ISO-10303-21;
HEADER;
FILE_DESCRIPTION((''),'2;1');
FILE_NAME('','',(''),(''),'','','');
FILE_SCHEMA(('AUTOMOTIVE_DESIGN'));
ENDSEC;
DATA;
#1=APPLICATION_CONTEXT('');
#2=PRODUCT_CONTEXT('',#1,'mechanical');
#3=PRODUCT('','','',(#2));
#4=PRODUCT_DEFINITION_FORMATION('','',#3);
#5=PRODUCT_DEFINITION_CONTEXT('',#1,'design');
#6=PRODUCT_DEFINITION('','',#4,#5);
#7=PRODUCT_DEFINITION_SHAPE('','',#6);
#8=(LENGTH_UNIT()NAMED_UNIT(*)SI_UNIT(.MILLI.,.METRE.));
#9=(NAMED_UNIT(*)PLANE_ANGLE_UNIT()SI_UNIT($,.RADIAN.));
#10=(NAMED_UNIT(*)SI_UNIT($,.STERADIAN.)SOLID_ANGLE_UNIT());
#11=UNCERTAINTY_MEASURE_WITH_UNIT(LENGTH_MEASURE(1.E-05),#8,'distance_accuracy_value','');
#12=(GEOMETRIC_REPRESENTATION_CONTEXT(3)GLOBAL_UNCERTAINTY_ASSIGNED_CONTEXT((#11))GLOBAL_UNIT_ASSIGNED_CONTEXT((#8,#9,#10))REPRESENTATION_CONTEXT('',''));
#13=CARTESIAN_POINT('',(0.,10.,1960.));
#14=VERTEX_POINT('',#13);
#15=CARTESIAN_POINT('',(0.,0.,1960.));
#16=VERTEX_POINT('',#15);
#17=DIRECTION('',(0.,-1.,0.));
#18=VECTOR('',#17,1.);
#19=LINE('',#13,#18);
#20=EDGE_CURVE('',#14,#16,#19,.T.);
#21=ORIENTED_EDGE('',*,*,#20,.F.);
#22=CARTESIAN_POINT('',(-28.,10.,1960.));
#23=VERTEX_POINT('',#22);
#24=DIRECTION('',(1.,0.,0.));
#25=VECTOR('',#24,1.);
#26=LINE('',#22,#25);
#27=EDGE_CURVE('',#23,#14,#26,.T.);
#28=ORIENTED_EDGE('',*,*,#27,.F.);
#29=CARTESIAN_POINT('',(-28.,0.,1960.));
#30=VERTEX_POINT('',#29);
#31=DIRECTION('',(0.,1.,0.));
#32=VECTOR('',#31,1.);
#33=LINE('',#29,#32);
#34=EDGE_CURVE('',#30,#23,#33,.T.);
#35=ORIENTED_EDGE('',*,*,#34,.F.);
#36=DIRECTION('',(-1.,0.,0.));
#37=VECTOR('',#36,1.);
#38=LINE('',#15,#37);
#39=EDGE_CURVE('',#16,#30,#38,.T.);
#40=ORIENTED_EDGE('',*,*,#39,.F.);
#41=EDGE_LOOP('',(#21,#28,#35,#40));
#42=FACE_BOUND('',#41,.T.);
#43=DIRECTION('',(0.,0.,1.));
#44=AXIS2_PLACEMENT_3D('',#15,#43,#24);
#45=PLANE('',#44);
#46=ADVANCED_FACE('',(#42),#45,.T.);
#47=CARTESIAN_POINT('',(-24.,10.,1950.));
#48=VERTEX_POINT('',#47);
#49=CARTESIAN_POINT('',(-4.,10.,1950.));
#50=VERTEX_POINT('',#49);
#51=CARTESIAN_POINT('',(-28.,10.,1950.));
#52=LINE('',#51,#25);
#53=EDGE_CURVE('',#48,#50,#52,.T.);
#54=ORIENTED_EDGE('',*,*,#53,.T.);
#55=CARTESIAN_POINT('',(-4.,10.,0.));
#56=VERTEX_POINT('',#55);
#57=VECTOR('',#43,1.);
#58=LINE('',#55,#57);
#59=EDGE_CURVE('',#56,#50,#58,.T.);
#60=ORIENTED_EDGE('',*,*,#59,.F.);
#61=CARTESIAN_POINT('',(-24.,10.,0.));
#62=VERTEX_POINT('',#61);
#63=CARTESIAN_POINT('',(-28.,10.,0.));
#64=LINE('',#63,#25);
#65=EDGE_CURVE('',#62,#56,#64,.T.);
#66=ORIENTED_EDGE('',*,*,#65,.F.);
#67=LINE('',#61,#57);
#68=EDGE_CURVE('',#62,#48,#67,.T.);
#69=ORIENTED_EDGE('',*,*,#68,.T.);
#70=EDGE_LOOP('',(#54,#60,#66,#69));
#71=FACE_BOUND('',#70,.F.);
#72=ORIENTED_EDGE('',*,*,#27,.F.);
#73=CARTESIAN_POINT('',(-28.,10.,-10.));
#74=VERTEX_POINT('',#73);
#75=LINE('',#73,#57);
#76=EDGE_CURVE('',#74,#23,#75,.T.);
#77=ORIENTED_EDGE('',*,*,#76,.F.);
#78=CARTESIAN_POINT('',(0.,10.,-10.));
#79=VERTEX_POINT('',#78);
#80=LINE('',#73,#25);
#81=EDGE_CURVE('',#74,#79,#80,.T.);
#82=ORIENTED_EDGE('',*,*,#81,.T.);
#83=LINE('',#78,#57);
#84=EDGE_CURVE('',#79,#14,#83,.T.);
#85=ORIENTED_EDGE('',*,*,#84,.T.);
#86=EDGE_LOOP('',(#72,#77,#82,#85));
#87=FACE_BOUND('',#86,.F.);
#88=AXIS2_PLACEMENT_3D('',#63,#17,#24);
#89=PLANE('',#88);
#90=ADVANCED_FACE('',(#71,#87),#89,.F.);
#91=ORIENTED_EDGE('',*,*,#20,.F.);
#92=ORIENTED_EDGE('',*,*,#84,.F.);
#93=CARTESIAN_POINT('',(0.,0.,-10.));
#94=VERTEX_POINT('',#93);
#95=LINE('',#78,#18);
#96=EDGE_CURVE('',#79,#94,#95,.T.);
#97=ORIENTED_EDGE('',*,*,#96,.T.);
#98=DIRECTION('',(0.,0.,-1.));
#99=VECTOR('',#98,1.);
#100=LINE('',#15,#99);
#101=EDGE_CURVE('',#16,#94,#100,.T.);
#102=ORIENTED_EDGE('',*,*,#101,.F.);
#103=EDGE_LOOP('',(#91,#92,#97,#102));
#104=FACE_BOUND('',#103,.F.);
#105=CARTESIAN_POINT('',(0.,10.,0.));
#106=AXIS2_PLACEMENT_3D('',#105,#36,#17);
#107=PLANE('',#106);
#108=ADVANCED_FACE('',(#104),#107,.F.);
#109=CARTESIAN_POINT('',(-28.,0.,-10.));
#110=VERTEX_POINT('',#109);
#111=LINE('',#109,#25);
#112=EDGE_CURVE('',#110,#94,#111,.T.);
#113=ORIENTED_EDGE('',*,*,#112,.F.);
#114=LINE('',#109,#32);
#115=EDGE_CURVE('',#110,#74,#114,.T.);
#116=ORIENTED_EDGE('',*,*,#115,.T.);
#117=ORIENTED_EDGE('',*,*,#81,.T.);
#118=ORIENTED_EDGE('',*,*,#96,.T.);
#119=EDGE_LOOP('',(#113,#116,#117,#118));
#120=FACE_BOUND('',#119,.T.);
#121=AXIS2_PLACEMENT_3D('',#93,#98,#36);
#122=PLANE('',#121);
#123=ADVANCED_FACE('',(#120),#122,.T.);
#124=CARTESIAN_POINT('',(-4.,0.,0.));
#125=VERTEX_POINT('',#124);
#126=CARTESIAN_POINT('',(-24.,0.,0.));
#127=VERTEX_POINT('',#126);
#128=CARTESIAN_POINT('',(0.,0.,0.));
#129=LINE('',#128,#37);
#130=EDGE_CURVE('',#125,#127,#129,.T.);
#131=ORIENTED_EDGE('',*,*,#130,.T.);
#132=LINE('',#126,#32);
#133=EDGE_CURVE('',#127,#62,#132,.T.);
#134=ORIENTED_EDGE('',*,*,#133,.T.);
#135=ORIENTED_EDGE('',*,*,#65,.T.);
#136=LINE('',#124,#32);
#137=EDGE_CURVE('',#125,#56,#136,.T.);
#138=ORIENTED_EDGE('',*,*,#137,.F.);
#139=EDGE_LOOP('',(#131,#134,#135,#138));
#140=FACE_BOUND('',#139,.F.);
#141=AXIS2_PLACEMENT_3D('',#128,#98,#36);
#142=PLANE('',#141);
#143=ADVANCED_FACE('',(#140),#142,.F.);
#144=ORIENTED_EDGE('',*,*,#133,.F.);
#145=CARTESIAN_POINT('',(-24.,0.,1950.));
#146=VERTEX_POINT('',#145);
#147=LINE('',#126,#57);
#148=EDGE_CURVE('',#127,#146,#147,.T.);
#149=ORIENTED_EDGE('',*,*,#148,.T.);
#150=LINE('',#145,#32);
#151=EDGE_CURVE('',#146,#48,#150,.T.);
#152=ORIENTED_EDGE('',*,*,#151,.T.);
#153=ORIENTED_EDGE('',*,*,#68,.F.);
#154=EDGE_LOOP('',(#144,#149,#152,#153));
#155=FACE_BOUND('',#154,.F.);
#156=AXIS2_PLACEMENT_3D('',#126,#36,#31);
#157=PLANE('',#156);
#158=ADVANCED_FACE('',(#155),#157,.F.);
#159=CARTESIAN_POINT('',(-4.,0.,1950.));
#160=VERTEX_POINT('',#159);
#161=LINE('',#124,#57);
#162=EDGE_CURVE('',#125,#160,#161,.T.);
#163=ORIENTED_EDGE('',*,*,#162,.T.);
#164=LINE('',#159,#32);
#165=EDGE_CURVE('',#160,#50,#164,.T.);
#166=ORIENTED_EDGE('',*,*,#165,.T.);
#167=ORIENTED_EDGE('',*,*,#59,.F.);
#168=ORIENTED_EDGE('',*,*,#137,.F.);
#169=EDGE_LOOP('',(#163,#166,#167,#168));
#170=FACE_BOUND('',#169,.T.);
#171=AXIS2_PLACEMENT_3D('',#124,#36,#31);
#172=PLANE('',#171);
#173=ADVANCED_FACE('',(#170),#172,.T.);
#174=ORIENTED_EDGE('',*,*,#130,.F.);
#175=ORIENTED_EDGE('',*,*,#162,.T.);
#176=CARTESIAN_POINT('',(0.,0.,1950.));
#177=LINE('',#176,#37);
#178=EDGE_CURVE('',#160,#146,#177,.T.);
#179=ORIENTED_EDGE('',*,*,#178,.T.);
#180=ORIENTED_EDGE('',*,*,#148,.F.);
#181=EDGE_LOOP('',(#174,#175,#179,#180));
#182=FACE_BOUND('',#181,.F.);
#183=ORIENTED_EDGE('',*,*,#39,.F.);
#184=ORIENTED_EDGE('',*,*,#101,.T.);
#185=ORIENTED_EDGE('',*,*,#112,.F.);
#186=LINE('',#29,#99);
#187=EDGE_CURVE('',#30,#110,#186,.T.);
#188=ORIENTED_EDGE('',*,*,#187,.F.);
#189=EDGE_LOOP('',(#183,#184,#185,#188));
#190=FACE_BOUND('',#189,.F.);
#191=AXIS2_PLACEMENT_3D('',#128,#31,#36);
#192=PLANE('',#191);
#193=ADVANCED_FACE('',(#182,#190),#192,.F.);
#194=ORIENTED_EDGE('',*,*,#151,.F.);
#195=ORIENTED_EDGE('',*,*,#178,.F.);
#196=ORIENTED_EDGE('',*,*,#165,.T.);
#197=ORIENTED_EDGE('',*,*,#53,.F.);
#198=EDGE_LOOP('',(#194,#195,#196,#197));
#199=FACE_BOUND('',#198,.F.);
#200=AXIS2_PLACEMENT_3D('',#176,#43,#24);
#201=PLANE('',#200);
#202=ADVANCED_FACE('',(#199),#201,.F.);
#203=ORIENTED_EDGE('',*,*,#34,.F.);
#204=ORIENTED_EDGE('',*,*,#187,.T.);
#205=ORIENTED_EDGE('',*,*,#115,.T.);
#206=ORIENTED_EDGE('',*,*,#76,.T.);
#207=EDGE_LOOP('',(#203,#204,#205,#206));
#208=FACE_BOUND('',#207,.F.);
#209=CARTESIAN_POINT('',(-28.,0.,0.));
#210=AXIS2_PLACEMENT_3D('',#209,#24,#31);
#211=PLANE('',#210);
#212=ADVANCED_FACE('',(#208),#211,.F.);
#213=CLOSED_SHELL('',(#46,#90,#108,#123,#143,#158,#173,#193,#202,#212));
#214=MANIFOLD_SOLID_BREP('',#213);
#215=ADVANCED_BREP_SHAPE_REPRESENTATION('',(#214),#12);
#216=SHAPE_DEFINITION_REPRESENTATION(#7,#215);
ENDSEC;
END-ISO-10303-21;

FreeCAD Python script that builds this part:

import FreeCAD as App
import Part
import Sketcher


def add_polygon(sketch, points):
    """Adds a closed chain of lines whose ends are joined by coincident constraints."""
    first, n = sketch.GeometryCount, len(points)
    for a, b in zip(points, points[1:] + points[:1]):
        sketch.addGeometry(Part.LineSegment(App.Vector(*a, 0), App.Vector(*b, 0)), False)
    for i in range(n):
        sketch.addConstraint(Sketcher.Constraint("Coincident", first + i, 2, first + (i + 1) % n, 1))

doc = App.newDocument("Part")
body = doc.addObject("PartDesign::Body", "Body")
body.AllowCompound = True

# Sketch on XY plane
sketch1 = body.newObject("Sketcher::SketchObject", "Sketch")
sketch1.AttachmentSupport = (doc.getObject("XY_Plane"), [""])
sketch1.MapMode = "FlatFace"
add_polygon(sketch1, [(-4, 0), (0, 0), (0, 10), (-4, 10)])  # lines 0-3
add_polygon(sketch1, [(-28, 10), (-28, 0), (-24, 0), (-24, 10)])  # lines 4-7
sketch1.addConstraint([
    Sketcher.Constraint("Horizontal", 0),
    Sketcher.Constraint("Vertical", 1),
    Sketcher.Constraint("Horizontal", 2),
    Sketcher.Constraint("Vertical", 3),
    Sketcher.Constraint("Vertical", 4),
    Sketcher.Constraint("Horizontal", 5),
    Sketcher.Constraint("Vertical", 6),
    Sketcher.Constraint("Horizontal", 7),
    Sketcher.Constraint("Coincident", 0, 2, -1, 1),
    Sketcher.Constraint("PointOnObject", 4, 2, -1),
    Sketcher.Constraint("Horizontal", 2, 2, 6, 2),
    Sketcher.Constraint("Equal", 2, 5),
    Sketcher.Constraint("DistanceX", 0, 1, 0, 2, 4.0),
    Sketcher.Constraint("DistanceY", 1, 1, 1, 2, 10.0),
    Sketcher.Constraint("DistanceX", 4, 2, -1, 1, 28.0),
])
pad1 = body.newObject("PartDesign::Pad", "Pad")
pad1.Profile = sketch1
pad1.Length = 1950

# Sketch on XY plane
sketch2 = body.newObject("Sketcher::SketchObject", "Sketch001")
sketch2.AttachmentSupport = (doc.getObject("XY_Plane"), [""])
sketch2.MapMode = "FlatFace"
sketch2.AttachmentOffset = App.Placement(App.Vector(0, 0, 1950), App.Rotation())
add_polygon(sketch2, [(0, 10), (-28, 10), (-28, 0), (0, 0)])  # lines 0-3
sketch2.addConstraint([
    Sketcher.Constraint("Horizontal", 0),
    Sketcher.Constraint("Vertical", 1),
    Sketcher.Constraint("Horizontal", 2),
    Sketcher.Constraint("Vertical", 3),
    Sketcher.Constraint("Coincident", 2, 2, -1, 1),
    Sketcher.Constraint("DistanceX", 0, 2, 0, 1, 28.0),
    Sketcher.Constraint("DistanceY", 1, 2, 1, 1, 10.0),
])
pad2 = body.newObject("PartDesign::Pad", "Pad001")
pad2.Profile = sketch2
pad2.Length = 10

# Sketch on XY plane
sketch3 = body.newObject("Sketcher::SketchObject", "Sketch002")
sketch3.AttachmentSupport = (doc.getObject("XY_Plane"), [""])
sketch3.MapMode = "FlatFace"
add_polygon(sketch3, [(0, 10), (0, 0), (-28, 0), (-28, 10)])  # lines 0-3
sketch3.addConstraint([
    Sketcher.Constraint("Vertical", 0),
    Sketcher.Constraint("Horizontal", 1),
    Sketcher.Constraint("Vertical", 2),
    Sketcher.Constraint("Horizontal", 3),
    Sketcher.Constraint("Coincident", 0, 2, -1, 1),
    Sketcher.Constraint("DistanceX", 1, 2, 1, 1, 28.0),
    Sketcher.Constraint("DistanceY", 0, 2, 0, 1, 10.0),
])
pad3 = body.newObject("PartDesign::Pad", "Pad002")
pad3.Profile = sketch3
pad3.Length = 10
pad3.Reversed = True

doc.recompute()
